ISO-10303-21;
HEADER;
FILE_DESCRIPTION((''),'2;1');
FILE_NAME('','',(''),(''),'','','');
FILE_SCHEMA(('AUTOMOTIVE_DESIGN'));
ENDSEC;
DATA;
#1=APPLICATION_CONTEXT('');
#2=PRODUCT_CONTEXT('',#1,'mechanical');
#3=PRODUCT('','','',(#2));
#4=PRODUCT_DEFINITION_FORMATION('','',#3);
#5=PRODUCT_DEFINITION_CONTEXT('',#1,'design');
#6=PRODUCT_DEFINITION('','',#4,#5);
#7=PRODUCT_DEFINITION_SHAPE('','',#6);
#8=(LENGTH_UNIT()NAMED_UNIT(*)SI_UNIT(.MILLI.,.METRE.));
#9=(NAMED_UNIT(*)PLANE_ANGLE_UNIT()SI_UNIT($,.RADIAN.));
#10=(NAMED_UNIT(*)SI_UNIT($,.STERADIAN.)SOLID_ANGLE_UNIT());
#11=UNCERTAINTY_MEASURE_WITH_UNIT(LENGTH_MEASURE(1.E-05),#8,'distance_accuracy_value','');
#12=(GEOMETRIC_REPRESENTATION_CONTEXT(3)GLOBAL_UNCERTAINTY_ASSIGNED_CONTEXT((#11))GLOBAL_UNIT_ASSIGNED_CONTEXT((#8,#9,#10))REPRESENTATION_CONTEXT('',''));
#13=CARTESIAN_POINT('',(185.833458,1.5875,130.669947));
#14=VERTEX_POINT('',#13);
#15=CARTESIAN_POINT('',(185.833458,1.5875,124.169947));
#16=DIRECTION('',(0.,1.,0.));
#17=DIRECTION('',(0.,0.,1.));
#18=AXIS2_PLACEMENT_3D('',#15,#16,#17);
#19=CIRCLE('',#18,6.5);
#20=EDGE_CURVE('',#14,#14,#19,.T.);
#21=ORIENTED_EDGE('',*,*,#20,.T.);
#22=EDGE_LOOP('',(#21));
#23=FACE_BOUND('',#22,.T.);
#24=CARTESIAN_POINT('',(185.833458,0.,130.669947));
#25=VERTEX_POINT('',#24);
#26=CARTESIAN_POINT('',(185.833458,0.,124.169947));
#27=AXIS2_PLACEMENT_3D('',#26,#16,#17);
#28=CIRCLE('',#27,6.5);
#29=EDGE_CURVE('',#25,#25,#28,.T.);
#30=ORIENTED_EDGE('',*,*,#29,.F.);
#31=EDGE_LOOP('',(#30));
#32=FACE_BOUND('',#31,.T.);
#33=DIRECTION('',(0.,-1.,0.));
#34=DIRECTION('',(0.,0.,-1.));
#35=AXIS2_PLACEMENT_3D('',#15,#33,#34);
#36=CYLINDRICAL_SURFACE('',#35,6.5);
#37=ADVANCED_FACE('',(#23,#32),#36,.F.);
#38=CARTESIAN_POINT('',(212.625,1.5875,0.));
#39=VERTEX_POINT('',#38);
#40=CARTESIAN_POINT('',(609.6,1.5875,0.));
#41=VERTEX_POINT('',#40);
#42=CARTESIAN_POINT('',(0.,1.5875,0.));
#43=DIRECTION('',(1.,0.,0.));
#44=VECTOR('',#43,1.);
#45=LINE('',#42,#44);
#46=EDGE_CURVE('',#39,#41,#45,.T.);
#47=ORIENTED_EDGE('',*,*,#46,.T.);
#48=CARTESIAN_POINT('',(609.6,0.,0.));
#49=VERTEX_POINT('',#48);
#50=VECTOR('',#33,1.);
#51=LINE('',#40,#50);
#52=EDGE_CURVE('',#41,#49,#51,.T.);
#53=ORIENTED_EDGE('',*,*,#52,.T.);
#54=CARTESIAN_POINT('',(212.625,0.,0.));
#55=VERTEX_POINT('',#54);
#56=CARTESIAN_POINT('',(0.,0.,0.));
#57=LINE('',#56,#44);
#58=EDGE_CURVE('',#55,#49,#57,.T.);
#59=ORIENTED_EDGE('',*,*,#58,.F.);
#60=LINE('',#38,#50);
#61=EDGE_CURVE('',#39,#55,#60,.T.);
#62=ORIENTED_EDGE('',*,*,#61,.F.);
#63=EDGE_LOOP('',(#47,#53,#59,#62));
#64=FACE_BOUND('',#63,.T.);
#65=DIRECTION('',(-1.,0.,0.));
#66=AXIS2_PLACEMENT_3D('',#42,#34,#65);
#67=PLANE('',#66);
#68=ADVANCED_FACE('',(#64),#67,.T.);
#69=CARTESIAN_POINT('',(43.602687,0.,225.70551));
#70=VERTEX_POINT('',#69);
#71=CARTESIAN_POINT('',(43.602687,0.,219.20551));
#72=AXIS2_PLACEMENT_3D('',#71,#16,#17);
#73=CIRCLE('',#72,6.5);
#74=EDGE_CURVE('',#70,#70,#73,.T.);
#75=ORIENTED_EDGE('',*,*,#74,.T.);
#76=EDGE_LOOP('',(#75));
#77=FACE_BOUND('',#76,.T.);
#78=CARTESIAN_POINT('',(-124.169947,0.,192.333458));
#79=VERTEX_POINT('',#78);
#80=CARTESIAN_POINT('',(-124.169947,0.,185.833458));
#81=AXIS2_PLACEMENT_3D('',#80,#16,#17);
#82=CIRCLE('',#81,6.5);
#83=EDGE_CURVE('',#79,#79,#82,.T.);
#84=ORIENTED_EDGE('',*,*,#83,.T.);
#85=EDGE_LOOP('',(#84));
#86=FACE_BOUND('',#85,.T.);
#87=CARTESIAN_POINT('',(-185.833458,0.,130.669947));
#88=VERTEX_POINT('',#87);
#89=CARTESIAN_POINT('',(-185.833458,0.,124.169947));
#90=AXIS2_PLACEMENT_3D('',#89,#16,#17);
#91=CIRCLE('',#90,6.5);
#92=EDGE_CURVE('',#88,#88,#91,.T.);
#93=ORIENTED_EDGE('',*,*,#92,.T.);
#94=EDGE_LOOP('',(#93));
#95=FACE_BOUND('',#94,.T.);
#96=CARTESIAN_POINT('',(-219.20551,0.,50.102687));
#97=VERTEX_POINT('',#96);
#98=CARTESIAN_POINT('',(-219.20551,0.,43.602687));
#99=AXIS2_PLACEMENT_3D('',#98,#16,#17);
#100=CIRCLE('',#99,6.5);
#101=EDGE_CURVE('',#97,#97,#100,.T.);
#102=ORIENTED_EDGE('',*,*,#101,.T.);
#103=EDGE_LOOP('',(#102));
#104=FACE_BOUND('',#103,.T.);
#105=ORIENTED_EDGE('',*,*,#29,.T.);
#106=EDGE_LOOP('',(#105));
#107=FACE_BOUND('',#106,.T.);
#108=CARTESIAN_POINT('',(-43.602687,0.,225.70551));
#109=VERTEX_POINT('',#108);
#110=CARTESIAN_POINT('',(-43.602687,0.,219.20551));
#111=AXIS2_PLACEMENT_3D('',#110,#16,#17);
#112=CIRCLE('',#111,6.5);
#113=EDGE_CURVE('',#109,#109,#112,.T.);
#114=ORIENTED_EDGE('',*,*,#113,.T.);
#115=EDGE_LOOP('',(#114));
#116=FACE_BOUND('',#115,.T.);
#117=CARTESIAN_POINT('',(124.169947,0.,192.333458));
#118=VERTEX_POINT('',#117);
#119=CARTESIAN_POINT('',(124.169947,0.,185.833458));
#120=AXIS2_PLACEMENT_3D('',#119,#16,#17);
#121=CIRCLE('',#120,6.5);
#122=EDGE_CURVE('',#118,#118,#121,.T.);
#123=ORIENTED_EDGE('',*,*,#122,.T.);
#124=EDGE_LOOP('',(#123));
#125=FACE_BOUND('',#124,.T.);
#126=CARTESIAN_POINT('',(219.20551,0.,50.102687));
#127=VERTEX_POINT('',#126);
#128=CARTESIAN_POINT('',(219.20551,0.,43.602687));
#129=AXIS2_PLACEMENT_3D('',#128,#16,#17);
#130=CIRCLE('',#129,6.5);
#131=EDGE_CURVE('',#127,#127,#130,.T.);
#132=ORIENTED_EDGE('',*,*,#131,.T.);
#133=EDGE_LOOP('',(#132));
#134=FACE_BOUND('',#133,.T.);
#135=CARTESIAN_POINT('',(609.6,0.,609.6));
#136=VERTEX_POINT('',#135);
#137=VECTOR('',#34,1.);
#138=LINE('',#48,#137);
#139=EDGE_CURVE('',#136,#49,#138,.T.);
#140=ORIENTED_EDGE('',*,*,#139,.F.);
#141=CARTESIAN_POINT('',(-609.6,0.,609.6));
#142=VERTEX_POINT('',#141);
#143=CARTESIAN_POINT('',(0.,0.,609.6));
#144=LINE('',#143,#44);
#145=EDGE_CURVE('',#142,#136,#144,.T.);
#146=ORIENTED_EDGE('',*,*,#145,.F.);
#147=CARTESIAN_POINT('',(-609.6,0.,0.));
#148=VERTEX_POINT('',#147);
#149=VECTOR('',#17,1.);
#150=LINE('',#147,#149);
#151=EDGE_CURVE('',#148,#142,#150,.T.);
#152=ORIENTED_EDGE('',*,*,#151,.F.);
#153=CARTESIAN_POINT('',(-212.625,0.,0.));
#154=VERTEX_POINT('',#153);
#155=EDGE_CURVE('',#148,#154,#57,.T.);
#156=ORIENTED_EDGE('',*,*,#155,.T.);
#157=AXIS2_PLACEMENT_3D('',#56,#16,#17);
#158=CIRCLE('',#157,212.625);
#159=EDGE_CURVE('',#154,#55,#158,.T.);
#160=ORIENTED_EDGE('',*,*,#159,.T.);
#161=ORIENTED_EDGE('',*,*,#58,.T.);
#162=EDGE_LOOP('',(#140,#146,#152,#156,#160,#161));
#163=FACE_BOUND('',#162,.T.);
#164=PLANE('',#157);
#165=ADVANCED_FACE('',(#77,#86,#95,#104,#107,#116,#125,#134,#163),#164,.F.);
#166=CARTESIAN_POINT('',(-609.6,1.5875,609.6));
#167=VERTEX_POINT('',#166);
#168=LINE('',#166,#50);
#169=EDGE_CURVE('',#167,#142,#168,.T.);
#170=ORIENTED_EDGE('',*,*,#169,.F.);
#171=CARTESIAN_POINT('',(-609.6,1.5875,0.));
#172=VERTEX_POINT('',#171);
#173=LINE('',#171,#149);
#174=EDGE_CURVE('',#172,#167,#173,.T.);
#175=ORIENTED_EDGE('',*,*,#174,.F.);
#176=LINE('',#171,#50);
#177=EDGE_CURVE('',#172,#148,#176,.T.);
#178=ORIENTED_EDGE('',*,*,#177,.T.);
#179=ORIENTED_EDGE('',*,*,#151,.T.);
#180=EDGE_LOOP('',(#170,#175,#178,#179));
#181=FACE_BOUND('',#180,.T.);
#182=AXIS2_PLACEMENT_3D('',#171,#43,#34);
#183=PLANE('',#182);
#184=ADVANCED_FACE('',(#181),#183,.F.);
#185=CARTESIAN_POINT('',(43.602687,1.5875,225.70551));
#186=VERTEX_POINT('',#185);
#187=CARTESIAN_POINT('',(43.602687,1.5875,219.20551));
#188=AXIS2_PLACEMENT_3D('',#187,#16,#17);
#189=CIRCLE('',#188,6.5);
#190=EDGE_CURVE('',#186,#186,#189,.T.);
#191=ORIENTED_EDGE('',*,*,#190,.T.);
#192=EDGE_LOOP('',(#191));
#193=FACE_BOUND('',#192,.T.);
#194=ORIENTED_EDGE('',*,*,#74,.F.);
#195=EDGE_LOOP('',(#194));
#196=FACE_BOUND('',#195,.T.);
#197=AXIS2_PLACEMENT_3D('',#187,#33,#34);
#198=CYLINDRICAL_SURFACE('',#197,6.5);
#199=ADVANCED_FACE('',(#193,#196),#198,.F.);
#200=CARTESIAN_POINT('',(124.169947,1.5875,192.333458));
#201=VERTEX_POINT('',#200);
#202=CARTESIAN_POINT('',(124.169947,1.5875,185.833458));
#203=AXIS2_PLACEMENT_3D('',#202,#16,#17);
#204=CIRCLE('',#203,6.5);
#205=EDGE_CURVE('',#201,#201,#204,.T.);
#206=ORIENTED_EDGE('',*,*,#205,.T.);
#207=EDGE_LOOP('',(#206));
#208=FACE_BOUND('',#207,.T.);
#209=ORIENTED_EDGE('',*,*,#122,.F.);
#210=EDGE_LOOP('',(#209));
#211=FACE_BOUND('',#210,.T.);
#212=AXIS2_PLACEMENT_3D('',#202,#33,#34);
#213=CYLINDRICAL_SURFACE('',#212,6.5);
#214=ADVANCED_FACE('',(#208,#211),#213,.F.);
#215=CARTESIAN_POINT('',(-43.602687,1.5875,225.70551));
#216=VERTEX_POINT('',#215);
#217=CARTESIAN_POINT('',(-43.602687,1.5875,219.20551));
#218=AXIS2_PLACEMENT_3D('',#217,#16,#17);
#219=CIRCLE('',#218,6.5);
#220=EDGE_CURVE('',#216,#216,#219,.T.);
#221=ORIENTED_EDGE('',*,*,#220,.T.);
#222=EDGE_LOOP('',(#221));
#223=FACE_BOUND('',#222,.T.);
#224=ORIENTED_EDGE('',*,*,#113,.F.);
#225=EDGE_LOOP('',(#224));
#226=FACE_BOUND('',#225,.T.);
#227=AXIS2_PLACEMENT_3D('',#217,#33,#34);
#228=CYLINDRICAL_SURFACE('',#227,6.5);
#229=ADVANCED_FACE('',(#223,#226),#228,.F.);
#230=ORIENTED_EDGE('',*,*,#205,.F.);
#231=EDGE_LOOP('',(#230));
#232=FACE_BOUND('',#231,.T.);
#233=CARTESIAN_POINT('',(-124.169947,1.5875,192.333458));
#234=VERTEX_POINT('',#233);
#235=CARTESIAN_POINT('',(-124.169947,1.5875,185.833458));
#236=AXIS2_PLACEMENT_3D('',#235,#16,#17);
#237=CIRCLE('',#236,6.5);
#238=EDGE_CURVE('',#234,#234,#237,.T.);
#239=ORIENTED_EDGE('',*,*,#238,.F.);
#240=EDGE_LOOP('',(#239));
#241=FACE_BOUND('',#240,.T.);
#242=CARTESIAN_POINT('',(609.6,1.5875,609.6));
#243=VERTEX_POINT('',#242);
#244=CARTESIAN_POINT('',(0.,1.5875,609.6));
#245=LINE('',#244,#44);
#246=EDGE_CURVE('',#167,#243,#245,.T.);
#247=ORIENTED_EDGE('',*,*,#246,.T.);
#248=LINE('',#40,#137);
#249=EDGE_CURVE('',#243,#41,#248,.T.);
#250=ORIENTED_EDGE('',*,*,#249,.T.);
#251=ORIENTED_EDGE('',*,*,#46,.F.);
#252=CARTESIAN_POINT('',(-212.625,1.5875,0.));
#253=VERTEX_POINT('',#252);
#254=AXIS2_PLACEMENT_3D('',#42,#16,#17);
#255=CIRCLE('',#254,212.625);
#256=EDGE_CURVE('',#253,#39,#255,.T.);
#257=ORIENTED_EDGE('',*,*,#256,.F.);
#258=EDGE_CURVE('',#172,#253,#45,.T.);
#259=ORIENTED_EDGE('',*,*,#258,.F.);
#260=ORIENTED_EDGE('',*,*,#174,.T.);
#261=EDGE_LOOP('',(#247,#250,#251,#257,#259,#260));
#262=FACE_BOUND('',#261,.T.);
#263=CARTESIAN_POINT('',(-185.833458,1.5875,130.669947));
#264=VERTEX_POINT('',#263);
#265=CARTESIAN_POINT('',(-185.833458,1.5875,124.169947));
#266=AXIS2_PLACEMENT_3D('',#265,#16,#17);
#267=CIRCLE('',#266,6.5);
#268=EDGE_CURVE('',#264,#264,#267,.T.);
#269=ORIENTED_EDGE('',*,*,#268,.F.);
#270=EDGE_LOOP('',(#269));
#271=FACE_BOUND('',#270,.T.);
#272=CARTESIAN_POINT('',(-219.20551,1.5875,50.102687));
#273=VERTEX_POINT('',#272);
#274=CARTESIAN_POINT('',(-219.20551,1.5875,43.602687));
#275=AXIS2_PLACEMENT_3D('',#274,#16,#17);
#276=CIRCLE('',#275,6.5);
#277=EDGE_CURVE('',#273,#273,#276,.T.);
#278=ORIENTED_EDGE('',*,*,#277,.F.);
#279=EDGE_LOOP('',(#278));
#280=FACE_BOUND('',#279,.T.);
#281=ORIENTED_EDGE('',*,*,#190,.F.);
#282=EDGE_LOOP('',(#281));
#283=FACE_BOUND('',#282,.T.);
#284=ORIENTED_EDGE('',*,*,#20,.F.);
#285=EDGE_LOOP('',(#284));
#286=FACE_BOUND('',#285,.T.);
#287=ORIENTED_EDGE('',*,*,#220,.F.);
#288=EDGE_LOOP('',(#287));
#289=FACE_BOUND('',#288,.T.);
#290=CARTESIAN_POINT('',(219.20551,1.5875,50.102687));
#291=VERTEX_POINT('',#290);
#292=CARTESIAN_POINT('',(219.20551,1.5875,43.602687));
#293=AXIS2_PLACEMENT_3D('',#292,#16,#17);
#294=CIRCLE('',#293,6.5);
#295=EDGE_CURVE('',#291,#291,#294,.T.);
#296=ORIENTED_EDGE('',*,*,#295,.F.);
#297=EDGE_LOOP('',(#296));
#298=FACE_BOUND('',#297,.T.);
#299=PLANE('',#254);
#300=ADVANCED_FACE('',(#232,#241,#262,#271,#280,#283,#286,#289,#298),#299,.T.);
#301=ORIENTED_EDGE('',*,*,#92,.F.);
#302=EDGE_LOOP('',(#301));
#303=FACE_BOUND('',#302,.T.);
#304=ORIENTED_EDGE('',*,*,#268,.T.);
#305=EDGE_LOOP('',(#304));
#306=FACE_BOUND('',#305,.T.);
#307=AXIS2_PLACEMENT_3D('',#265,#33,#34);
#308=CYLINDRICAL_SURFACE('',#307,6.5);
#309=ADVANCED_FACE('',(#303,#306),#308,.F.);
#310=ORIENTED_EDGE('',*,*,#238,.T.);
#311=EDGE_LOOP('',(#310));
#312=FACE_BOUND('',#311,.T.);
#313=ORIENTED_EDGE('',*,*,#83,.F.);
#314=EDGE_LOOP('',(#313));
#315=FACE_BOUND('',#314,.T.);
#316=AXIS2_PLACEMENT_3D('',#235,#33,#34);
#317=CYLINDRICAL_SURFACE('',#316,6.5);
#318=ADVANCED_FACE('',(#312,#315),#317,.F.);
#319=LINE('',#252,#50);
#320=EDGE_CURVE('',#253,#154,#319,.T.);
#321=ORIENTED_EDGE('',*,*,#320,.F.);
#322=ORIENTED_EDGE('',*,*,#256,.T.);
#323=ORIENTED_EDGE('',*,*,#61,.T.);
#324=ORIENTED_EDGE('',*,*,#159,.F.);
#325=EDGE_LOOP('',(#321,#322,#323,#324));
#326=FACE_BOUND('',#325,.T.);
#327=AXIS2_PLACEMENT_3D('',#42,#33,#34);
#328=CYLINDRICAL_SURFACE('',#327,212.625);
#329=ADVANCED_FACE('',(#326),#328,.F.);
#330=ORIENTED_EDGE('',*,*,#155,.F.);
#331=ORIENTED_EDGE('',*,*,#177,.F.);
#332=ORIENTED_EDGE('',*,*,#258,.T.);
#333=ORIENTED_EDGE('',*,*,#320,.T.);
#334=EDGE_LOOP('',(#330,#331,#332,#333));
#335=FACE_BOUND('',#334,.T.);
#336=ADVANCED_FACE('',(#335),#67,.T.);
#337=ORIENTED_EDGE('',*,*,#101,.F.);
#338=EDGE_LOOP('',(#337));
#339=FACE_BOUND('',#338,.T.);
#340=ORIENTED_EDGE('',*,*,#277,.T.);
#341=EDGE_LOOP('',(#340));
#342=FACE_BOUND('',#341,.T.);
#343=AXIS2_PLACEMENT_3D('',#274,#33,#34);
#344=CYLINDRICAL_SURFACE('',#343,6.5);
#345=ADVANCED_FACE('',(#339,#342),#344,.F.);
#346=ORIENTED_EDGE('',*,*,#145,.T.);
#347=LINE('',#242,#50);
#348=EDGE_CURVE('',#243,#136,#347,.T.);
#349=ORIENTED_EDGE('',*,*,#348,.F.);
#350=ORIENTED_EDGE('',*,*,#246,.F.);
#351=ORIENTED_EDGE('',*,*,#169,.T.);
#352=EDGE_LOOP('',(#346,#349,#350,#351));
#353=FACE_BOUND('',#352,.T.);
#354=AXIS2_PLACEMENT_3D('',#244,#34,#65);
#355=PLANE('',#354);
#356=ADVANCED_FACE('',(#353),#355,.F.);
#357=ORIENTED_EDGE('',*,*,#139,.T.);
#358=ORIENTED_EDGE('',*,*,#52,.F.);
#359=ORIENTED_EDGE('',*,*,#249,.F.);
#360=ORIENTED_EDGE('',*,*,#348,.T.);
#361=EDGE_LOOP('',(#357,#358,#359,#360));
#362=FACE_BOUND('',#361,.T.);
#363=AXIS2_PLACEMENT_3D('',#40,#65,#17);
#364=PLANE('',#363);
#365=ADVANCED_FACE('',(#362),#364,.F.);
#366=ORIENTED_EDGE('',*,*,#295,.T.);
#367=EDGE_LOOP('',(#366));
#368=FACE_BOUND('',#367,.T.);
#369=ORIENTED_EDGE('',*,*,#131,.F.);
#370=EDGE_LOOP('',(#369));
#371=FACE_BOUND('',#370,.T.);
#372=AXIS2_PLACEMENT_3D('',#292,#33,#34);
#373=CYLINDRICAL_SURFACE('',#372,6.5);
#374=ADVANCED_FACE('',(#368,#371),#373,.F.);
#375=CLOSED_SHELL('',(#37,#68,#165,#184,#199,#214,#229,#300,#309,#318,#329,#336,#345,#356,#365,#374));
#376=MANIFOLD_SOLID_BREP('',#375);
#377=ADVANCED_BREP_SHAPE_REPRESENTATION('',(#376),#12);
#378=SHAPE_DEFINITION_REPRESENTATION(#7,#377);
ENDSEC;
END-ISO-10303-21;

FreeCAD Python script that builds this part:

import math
import FreeCAD as App
import Part
import Sketcher

V = App.Vector
Q = App.Units.Quantity

doc = App.newDocument("Part")
body = doc.addObject("PartDesign::Body", "Body")

sketch1 = doc.addObject("Sketcher::SketchObject", "Sketch")
body.addObject(sketch1)
sketch1.AttachmentSupport = (doc.XZ_Plane, [""])
sketch1.MapMode = "FlatFace"
sketch1.addGeometry(Part.ArcOfCircle(Part.Circle(V(0, 0, 0), V(0, 0, 1), 212.625), math.radians(0), math.radians(180)), False)
sketch1.addGeometry(Part.LineSegment(V(-212.625, 0, 0), V(-609.6, 0, 0)), False)
sketch1.addGeometry(Part.LineSegment(V(-609.6, 0, 0), V(-609.6, 609.6, 0)), False)
sketch1.addGeometry(Part.LineSegment(V(-609.6, 609.6, 0), V(609.6, 609.6, 0)), False)
sketch1.addGeometry(Part.LineSegment(V(609.6, 609.6, 0), V(609.6, 0, 0)), False)
sketch1.addGeometry(Part.LineSegment(V(609.6, 0, 0), V(212.625, 0, 0)), False)
sketch1.addGeometry(Part.Circle(V(124.169947, 185.833458, 0), V(0, 0, 1), 6.5), False)
sketch1.addGeometry(Part.Circle(V(43.602687, 219.20551, 0), V(0, 0, 1), 6.5), False)
sketch1.addGeometry(Part.Circle(V(-43.602687, 219.20551, 0), V(0, 0, 1), 6.5), False)
sketch1.addGeometry(Part.Circle(V(-124.169947, 185.833458, 0), V(0, 0, 1), 6.5), False)
sketch1.addGeometry(Part.Circle(V(185.833458, 124.169947, 0), V(0, 0, 1), 6.5), False)
sketch1.addGeometry(Part.Circle(V(219.20551, 43.602687, 0), V(0, 0, 1), 6.5), False)
sketch1.addGeometry(Part.Circle(V(-185.833458, 124.169947, 0), V(0, 0, 1), 6.5), False)
sketch1.addGeometry(Part.Circle(V(-219.20551, 43.602687, 0), V(0, 0, 1), 6.5), False)
sketch1.addConstraint(Sketcher.Constraint("Coincident", 0, 2, 1, 1))
sketch1.addConstraint(Sketcher.Constraint("Coincident", 1, 2, 2, 1))
sketch1.addConstraint(Sketcher.Constraint("Coincident", 2, 2, 3, 1))
sketch1.addConstraint(Sketcher.Constraint("Coincident", 3, 2, 4, 1))
sketch1.addConstraint(Sketcher.Constraint("Coincident", 4, 2, 5, 1))
sketch1.addConstraint(Sketcher.Constraint("Coincident", 5, 2, 0, 1))
sketch1.addConstraint(Sketcher.Constraint("Horizontal", 1))
sketch1.addConstraint(Sketcher.Constraint("Vertical", 2))
sketch1.addConstraint(Sketcher.Constraint("Horizontal", 3))
sketch1.addConstraint(Sketcher.Constraint("Vertical", 4))
sketch1.addConstraint(Sketcher.Constraint("Horizontal", 5))
sketch1.addConstraint(Sketcher.Constraint("Coincident", 0, 3, -1, 1))
sketch1.addConstraint(Sketcher.Constraint("Equal", 6, 7))
sketch1.addConstraint(Sketcher.Constraint("Equal", 7, 8))
sketch1.addConstraint(Sketcher.Constraint("Equal", 8, 9))
sketch1.addConstraint(Sketcher.Constraint("Equal", 9, 10))
sketch1.addConstraint(Sketcher.Constraint("Equal", 10, 11))
sketch1.addConstraint(Sketcher.Constraint("Equal", 11, 12))
sketch1.addConstraint(Sketcher.Constraint("Equal", 12, 13))
sketch1.addConstraint(Sketcher.Constraint("Symmetric", 1, 2, 4, 2, -1, 1))
sketch1.addConstraint(Sketcher.Constraint("Symmetric", 7, 3, 8, 3, -2))
sketch1.addConstraint(Sketcher.Constraint("Symmetric", 6, 3, 9, 3, -2))
sketch1.addConstraint(Sketcher.Constraint("Symmetric", 10, 3, 12, 3, -2))
sketch1.addConstraint(Sketcher.Constraint("Symmetric", 11, 3, 13, 3, -2))
sketch1.addConstraint(Sketcher.Constraint("PointOnObject", 1, 2, -1))
sketch1.addConstraint(Sketcher.Constraint("DistanceX", 3, 1, 3, 2, Q("48 in")))
sketch1.addConstraint(Sketcher.Constraint("DistanceY", 2, 1, 2, 2, Q("24 in")))
sketch1.addConstraint(Sketcher.Constraint("Diameter", 6, 13.0))
sketch1.addConstraint(Sketcher.Constraint("Radius", 0, 212.625))
sketch1.addConstraint(Sketcher.Constraint("DistanceY", -1, 1, 6, 3, 185.833458))
sketch1.addConstraint(Sketcher.Constraint("DistanceY", -1, 1, 7, 3, 219.20551))
sketch1.addConstraint(Sketcher.Constraint("DistanceX", -1, 1, 10, 3, 185.833458))
sketch1.addConstraint(Sketcher.Constraint("DistanceX", -1, 1, 11, 3, 219.20551))
sketch1.addConstraint(Sketcher.Constraint("DistanceX", 7, 3, 6, 3, 80.56726))
sketch1.addConstraint(Sketcher.Constraint("DistanceX", 6, 3, 10, 3, 61.663511))
sketch1.addConstraint(Sketcher.Constraint("DistanceY", 10, 3, 6, 3, 61.663511))
sketch1.addConstraint(Sketcher.Constraint("DistanceY", 11, 3, 10, 3, 80.56726))
pad1 = doc.addObject("PartDesign::Pad", "Pad")
body.addObject(pad1)
pad1.Profile = sketch1
pad1.Length = Q("0.0625 in")
pad1.Reversed = True

doc.recompute()
